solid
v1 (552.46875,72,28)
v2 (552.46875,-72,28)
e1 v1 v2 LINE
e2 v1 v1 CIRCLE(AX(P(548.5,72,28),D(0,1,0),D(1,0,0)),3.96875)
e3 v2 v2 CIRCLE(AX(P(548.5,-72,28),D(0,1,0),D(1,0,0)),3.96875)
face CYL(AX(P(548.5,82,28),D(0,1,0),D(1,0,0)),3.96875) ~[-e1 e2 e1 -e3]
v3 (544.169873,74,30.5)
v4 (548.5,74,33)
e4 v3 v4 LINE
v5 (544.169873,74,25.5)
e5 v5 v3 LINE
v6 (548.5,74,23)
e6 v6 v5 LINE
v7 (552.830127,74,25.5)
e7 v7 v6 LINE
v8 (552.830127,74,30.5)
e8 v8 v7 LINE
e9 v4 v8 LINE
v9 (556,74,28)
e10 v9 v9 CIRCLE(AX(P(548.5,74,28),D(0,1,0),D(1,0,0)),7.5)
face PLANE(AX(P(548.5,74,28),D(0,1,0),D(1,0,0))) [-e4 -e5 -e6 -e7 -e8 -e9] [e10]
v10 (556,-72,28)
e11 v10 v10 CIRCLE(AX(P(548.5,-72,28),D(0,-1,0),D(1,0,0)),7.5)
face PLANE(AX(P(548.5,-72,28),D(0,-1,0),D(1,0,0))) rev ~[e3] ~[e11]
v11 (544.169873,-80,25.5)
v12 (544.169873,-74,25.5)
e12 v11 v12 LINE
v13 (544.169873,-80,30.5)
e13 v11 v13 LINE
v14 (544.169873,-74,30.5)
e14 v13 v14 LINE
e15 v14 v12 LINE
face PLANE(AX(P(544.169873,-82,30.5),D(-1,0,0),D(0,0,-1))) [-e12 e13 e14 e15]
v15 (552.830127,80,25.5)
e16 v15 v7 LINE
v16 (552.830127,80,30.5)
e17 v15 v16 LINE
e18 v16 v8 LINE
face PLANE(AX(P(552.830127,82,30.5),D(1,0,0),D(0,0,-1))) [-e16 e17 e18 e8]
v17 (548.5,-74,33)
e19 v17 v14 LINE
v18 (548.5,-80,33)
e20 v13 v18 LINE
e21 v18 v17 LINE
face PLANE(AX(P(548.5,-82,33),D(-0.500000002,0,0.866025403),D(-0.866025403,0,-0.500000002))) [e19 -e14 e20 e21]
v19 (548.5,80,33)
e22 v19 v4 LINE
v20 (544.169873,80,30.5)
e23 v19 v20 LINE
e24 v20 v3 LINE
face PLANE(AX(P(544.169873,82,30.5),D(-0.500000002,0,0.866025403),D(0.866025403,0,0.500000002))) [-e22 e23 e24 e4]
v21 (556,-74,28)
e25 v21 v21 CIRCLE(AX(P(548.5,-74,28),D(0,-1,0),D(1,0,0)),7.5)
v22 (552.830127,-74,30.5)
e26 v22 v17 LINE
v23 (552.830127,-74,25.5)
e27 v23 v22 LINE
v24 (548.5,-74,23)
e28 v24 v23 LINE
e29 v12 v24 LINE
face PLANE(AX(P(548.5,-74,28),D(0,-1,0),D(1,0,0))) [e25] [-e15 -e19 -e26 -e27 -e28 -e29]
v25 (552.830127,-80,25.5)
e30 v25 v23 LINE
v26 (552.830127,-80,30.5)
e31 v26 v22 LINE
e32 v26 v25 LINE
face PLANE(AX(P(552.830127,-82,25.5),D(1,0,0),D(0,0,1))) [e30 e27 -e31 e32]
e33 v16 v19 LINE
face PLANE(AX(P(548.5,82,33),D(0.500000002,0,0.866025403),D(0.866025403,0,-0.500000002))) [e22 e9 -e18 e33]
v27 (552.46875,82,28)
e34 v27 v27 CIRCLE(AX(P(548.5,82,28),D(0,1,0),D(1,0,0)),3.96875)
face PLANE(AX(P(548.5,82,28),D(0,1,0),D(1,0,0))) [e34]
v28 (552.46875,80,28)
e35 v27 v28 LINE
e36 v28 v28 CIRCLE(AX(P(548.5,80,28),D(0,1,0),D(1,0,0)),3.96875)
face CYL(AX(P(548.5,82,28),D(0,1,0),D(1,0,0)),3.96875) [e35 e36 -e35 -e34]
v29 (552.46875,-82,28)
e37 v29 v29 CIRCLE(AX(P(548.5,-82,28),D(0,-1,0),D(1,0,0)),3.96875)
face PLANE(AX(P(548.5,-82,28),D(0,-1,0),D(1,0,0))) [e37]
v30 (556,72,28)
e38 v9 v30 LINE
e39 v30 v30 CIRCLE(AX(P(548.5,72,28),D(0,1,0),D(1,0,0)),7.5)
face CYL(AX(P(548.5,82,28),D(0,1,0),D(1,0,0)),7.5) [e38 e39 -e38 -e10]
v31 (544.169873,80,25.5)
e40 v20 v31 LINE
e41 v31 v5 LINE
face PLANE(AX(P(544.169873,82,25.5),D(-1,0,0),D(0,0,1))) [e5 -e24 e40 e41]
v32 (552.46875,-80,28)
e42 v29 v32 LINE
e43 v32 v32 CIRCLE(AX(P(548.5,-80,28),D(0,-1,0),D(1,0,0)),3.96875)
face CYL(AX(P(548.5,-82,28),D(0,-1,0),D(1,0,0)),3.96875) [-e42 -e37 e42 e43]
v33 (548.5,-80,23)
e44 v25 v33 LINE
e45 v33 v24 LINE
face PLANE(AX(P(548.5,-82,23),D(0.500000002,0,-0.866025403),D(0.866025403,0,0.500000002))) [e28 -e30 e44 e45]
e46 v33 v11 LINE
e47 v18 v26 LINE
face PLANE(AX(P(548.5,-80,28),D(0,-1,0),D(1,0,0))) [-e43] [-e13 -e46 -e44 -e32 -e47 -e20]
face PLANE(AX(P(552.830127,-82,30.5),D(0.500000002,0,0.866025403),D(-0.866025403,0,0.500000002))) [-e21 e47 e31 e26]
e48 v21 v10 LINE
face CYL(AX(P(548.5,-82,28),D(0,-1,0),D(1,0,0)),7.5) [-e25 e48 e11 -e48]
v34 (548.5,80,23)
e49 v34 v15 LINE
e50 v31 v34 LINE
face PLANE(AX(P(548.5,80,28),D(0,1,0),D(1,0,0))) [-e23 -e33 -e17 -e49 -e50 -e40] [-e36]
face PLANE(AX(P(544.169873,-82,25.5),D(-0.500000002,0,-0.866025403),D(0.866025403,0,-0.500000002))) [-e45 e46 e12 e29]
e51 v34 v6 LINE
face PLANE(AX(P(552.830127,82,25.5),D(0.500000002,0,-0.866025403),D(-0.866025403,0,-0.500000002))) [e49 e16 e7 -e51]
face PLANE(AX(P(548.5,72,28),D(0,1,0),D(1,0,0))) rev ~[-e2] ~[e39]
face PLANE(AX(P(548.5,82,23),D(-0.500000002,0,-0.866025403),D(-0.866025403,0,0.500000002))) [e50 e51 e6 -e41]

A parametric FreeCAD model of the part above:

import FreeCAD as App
import Part
import Sketcher
from FreeCAD import Vector
Q = App.Units.Quantity


def add_polygon(sketch, points):
    """Adds a closed chain of lines whose ends are joined by coincident constraints."""
    first, n = sketch.GeometryCount, len(points)
    for a, b in zip(points, points[1:] + points[:1]):
        sketch.addGeometry(Part.LineSegment(App.Vector(*a, 0), App.Vector(*b, 0)), False)
    for i in range(n):
        sketch.addConstraint(Sketcher.Constraint("Coincident", first + i, 2, first + (i + 1) % n, 1))

doc = App.newDocument("Part")
body = doc.addObject("PartDesign::Body", "Body")

# Sketch on XZ plane
sketch1 = body.newObject("Sketcher::SketchObject", "Sketch")
sketch1.AttachmentSupport = (doc.getObject("XZ_Plane"), [""])
sketch1.MapMode = "FlatFace"
sketch1.AttachmentOffset = App.Placement(Vector(0, 0, -82), App.Rotation())
sketch1.addGeometry(Part.Circle(Vector(500, 56, 0), Vector(0, 0, 1), 4), False)
sketch1.addConstraint(Sketcher.Constraint("DistanceX", -1, 1, 0, 3, 500.0))
sketch1.addConstraint(Sketcher.Constraint("DistanceY", -1, 1, 0, 3, 56.0))
sketch1.addConstraint(Sketcher.Constraint("Diameter", 0, 7.9375))
pad1 = body.newObject("PartDesign::Pad", "Pad")
pad1.Profile = sketch1
pad1.Length = 164

# Sketch on XZ plane
sketch2 = body.newObject("Sketcher::SketchObject", "Sketch001")
sketch2.AttachmentSupport = (doc.getObject("XZ_Plane"), [""])
sketch2.MapMode = "FlatFace"
sketch2.AttachmentOffset = App.Placement(Vector(0, 0, -82), App.Rotation())
sketch2.addGeometry(Part.Circle(Vector(500, 56, 0), Vector(0, 0, 1), 8), False)
sketch2.addConstraint(Sketcher.Constraint("Diameter", 0, 15.0))
sketch2.addConstraint(Sketcher.Constraint("DistanceX", -1, 1, 0, 3, 500.0))
sketch2.addConstraint(Sketcher.Constraint("DistanceY", -1, 1, 0, 3, 56.0))
pad2 = body.newObject("PartDesign::Pad", "Pad001")
pad2.Profile = sketch2
pad2.Length = 10

# Sketch on XZ plane
sketch3 = body.newObject("Sketcher::SketchObject", "Sketch002")
sketch3.AttachmentSupport = (doc.getObject("XZ_Plane"), [""])
sketch3.MapMode = "FlatFace"
sketch3.AttachmentOffset = App.Placement(Vector(0, 0, -82), App.Rotation())
sketch3.addGeometry(Part.Circle(Vector(500, 56, 0), Vector(0, 0, 1), 7.5), False)  # 0
add_polygon(sketch3, [(495.7, 53.5), (500, 51), (504.3, 53.5), (504.3, 58.5), (500, 61), (495.7, 58.5)])  # lines 1-6
sketch3.addConstraint(Sketcher.Constraint("Vertical", 3))
sketch3.addConstraint(Sketcher.Constraint("Vertical", 6))
sketch3.addConstraint(Sketcher.Constraint("Parallel", 1, 4))
sketch3.addConstraint(Sketcher.Constraint("Parallel", 2, 5))
sketch3.addConstraint(Sketcher.Constraint("Horizontal", 3, 2, 5, 2))
sketch3.addConstraint(Sketcher.Constraint("Horizontal", 2, 2, 6, 2))
sketch3.addConstraint(Sketcher.Constraint("Vertical", 0, 3, 1, 2))
sketch3.addConstraint(Sketcher.Constraint("Vertical", 1, 2, 4, 2))
sketch3.addConstraint(Sketcher.Constraint("Diameter", 0, 15.0))
sketch3.addConstraint(Sketcher.Constraint("DistanceY", 3, 1, 3, 2, 5.0))
sketch3.addConstraint(Sketcher.Constraint("Angle", 1, Q("-30 deg")))
sketch3.addConstraint(Sketcher.Constraint("Distance", 1, 5.0))
sketch3.addConstraint(Sketcher.Constraint("DistanceX", -1, 1, 0, 3, 500.0))
sketch3.addConstraint(Sketcher.Constraint("DistanceY", -1, 1, 0, 3, 56.0))
sketch3.addConstraint(Sketcher.Constraint("DistanceY", -1, 1, 1, 2, 51.0))
pocket1 = body.newObject("PartDesign::Pocket", "Pocket")
pocket1.Profile = sketch3
pocket1.Length = 8
pocket1.Reversed = True

# Sketch on XZ plane
sketch4 = body.newObject("Sketcher::SketchObject", "Sketch003")
sketch4.AttachmentSupport = (doc.getObject("XZ_Plane"), [""])
sketch4.MapMode = "FlatFace"
sketch4.AttachmentOffset = App.Placement(Vector(0, 0, -82), App.Rotation())
sketch4.addGeometry(Part.Circle(Vector(500, 56, 0), Vector(0, 0, 1), 7.5), False)
sketch4.addGeometry(Part.Circle(Vector(500, 56, 0), Vector(0, 0, 1), 4), False)
sketch4.addConstraint(Sketcher.Constraint("Coincident", 1, 3, 0, 3))
sketch4.addConstraint(Sketcher.Constraint("Diameter", 0, 15.0))
sketch4.addConstraint(Sketcher.Constraint("DistanceX", -1, 1, 0, 3, 500.0))
sketch4.addConstraint(Sketcher.Constraint("DistanceY", -1, 1, 0, 3, 56.0))
sketch4.addConstraint(Sketcher.Constraint("Diameter", 1, 7.9375))
pocket2 = body.newObject("PartDesign::Pocket", "Pocket001")
pocket2.Profile = sketch4
pocket2.Length = 2
pocket2.Reversed = True

# Sketch on XZ plane
sketch5 = body.newObject("Sketcher::SketchObject", "Sketch004")
sketch5.AttachmentSupport = (doc.getObject("XZ_Plane"), [""])
sketch5.MapMode = "FlatFace"
sketch5.AttachmentOffset = App.Placement(Vector(0, 0, 82), App.Rotation())
sketch5.addGeometry(Part.Circle(Vector(500, 56, 0), Vector(0, 0, 1), 8), False)
sketch5.addConstraint(Sketcher.Constraint("Diameter", 0, 15.0))
sketch5.addConstraint(Sketcher.Constraint("DistanceX", -1, 1, 0, 3, 500.0))
sketch5.addConstraint(Sketcher.Constraint("DistanceY", -1, 1, 0, 3, 56.0))
pad3 = body.newObject("PartDesign::Pad", "Pad002")
pad3.Profile = sketch5
pad3.Length = 10
pad3.Reversed = True

# Sketch on XZ plane
sketch6 = body.newObject("Sketcher::SketchObject", "Sketch005")
sketch6.AttachmentSupport = (doc.getObject("XZ_Plane"), [""])
sketch6.MapMode = "FlatFace"
sketch6.AttachmentOffset = App.Placement(Vector(0, 0, 82), App.Rotation())
sketch6.addGeometry(Part.Circle(Vector(500, 56, 0), Vector(0, 0, 1), 7.5), False)  # 0
add_polygon(sketch6, [(495.7, 58.5), (500, 61), (504.3, 58.5), (504.3, 53.5), (500, 51), (495.7, 53.5)])  # lines 1-6
sketch6.addConstraint(Sketcher.Constraint("Vertical", 3))
sketch6.addConstraint(Sketcher.Constraint("Vertical", 6))
sketch6.addConstraint(Sketcher.Constraint("Parallel", 1, 4))
sketch6.addConstraint(Sketcher.Constraint("Parallel", 2, 5))
sketch6.addConstraint(Sketcher.Constraint("Horizontal", 3, 2, 5, 2))
sketch6.addConstraint(Sketcher.Constraint("Horizontal", 2, 2, 6, 2))
sketch6.addConstraint(Sketcher.Constraint("Vertical", 0, 3, 1, 2))
sketch6.addConstraint(Sketcher.Constraint("Vertical", 1, 2, 4, 2))
sketch6.addConstraint(Sketcher.Constraint("Diameter", 0, 15.0))
sketch6.addConstraint(Sketcher.Constraint("DistanceY", 3, 2, 3, 1, 5.0))
sketch6.addConstraint(Sketcher.Constraint("Angle", 1, Q("30 deg")))
sketch6.addConstraint(Sketcher.Constraint("Distance", 1, 5.0))
sketch6.addConstraint(Sketcher.Constraint("DistanceX", -1, 1, 0, 3, 500.0))
sketch6.addConstraint(Sketcher.Constraint("DistanceY", -1, 1, 0, 3, 56.0))
sketch6.addConstraint(Sketcher.Constraint("DistanceY", -1, 1, 1, 2, 61.0))
pocket3 = body.newObject("PartDesign::Pocket", "Pocket002")
pocket3.Profile = sketch6
pocket3.Length = 8

# Sketch on XZ plane
sketch7 = body.newObject("Sketcher::SketchObject", "Sketch006")
sketch7.AttachmentSupport = (doc.getObject("XZ_Plane"), [""])
sketch7.MapMode = "FlatFace"
sketch7.AttachmentOffset = App.Placement(Vector(0, 0, 82), App.Rotation())
sketch7.addGeometry(Part.Circle(Vector(500, 56, 0), Vector(0, 0, 1), 7.5), False)
sketch7.addGeometry(Part.Circle(Vector(500, 56, 0), Vector(0, 0, 1), 4), False)
sketch7.addConstraint(Sketcher.Constraint("Coincident", 1, 3, 0, 3))
sketch7.addConstraint(Sketcher.Constraint("Diameter", 0, 15.0))
sketch7.addConstraint(Sketcher.Constraint("DistanceX", -1, 1, 0, 3, 500.0))
sketch7.addConstraint(Sketcher.Constraint("DistanceY", -1, 1, 0, 3, 56.0))
sketch7.addConstraint(Sketcher.Constraint("Diameter", 1, 7.9375))
pocket4 = body.newObject("PartDesign::Pocket", "Pocket003")
pocket4.Profile = sketch7
pocket4.Length = 2
body2 = doc.addObject("PartDesign::Body", "Body001")
doc.recompute()

body.Placement = App.Placement(Vector(48.5, 0, -28), App.Rotation(Vector(0, 0, 1), 0))
boolean = body2.newObject("PartDesign::Boolean", "Boolean")
boolean.Type = "Fuse"
boolean.addObjects([body])

doc.recompute()
